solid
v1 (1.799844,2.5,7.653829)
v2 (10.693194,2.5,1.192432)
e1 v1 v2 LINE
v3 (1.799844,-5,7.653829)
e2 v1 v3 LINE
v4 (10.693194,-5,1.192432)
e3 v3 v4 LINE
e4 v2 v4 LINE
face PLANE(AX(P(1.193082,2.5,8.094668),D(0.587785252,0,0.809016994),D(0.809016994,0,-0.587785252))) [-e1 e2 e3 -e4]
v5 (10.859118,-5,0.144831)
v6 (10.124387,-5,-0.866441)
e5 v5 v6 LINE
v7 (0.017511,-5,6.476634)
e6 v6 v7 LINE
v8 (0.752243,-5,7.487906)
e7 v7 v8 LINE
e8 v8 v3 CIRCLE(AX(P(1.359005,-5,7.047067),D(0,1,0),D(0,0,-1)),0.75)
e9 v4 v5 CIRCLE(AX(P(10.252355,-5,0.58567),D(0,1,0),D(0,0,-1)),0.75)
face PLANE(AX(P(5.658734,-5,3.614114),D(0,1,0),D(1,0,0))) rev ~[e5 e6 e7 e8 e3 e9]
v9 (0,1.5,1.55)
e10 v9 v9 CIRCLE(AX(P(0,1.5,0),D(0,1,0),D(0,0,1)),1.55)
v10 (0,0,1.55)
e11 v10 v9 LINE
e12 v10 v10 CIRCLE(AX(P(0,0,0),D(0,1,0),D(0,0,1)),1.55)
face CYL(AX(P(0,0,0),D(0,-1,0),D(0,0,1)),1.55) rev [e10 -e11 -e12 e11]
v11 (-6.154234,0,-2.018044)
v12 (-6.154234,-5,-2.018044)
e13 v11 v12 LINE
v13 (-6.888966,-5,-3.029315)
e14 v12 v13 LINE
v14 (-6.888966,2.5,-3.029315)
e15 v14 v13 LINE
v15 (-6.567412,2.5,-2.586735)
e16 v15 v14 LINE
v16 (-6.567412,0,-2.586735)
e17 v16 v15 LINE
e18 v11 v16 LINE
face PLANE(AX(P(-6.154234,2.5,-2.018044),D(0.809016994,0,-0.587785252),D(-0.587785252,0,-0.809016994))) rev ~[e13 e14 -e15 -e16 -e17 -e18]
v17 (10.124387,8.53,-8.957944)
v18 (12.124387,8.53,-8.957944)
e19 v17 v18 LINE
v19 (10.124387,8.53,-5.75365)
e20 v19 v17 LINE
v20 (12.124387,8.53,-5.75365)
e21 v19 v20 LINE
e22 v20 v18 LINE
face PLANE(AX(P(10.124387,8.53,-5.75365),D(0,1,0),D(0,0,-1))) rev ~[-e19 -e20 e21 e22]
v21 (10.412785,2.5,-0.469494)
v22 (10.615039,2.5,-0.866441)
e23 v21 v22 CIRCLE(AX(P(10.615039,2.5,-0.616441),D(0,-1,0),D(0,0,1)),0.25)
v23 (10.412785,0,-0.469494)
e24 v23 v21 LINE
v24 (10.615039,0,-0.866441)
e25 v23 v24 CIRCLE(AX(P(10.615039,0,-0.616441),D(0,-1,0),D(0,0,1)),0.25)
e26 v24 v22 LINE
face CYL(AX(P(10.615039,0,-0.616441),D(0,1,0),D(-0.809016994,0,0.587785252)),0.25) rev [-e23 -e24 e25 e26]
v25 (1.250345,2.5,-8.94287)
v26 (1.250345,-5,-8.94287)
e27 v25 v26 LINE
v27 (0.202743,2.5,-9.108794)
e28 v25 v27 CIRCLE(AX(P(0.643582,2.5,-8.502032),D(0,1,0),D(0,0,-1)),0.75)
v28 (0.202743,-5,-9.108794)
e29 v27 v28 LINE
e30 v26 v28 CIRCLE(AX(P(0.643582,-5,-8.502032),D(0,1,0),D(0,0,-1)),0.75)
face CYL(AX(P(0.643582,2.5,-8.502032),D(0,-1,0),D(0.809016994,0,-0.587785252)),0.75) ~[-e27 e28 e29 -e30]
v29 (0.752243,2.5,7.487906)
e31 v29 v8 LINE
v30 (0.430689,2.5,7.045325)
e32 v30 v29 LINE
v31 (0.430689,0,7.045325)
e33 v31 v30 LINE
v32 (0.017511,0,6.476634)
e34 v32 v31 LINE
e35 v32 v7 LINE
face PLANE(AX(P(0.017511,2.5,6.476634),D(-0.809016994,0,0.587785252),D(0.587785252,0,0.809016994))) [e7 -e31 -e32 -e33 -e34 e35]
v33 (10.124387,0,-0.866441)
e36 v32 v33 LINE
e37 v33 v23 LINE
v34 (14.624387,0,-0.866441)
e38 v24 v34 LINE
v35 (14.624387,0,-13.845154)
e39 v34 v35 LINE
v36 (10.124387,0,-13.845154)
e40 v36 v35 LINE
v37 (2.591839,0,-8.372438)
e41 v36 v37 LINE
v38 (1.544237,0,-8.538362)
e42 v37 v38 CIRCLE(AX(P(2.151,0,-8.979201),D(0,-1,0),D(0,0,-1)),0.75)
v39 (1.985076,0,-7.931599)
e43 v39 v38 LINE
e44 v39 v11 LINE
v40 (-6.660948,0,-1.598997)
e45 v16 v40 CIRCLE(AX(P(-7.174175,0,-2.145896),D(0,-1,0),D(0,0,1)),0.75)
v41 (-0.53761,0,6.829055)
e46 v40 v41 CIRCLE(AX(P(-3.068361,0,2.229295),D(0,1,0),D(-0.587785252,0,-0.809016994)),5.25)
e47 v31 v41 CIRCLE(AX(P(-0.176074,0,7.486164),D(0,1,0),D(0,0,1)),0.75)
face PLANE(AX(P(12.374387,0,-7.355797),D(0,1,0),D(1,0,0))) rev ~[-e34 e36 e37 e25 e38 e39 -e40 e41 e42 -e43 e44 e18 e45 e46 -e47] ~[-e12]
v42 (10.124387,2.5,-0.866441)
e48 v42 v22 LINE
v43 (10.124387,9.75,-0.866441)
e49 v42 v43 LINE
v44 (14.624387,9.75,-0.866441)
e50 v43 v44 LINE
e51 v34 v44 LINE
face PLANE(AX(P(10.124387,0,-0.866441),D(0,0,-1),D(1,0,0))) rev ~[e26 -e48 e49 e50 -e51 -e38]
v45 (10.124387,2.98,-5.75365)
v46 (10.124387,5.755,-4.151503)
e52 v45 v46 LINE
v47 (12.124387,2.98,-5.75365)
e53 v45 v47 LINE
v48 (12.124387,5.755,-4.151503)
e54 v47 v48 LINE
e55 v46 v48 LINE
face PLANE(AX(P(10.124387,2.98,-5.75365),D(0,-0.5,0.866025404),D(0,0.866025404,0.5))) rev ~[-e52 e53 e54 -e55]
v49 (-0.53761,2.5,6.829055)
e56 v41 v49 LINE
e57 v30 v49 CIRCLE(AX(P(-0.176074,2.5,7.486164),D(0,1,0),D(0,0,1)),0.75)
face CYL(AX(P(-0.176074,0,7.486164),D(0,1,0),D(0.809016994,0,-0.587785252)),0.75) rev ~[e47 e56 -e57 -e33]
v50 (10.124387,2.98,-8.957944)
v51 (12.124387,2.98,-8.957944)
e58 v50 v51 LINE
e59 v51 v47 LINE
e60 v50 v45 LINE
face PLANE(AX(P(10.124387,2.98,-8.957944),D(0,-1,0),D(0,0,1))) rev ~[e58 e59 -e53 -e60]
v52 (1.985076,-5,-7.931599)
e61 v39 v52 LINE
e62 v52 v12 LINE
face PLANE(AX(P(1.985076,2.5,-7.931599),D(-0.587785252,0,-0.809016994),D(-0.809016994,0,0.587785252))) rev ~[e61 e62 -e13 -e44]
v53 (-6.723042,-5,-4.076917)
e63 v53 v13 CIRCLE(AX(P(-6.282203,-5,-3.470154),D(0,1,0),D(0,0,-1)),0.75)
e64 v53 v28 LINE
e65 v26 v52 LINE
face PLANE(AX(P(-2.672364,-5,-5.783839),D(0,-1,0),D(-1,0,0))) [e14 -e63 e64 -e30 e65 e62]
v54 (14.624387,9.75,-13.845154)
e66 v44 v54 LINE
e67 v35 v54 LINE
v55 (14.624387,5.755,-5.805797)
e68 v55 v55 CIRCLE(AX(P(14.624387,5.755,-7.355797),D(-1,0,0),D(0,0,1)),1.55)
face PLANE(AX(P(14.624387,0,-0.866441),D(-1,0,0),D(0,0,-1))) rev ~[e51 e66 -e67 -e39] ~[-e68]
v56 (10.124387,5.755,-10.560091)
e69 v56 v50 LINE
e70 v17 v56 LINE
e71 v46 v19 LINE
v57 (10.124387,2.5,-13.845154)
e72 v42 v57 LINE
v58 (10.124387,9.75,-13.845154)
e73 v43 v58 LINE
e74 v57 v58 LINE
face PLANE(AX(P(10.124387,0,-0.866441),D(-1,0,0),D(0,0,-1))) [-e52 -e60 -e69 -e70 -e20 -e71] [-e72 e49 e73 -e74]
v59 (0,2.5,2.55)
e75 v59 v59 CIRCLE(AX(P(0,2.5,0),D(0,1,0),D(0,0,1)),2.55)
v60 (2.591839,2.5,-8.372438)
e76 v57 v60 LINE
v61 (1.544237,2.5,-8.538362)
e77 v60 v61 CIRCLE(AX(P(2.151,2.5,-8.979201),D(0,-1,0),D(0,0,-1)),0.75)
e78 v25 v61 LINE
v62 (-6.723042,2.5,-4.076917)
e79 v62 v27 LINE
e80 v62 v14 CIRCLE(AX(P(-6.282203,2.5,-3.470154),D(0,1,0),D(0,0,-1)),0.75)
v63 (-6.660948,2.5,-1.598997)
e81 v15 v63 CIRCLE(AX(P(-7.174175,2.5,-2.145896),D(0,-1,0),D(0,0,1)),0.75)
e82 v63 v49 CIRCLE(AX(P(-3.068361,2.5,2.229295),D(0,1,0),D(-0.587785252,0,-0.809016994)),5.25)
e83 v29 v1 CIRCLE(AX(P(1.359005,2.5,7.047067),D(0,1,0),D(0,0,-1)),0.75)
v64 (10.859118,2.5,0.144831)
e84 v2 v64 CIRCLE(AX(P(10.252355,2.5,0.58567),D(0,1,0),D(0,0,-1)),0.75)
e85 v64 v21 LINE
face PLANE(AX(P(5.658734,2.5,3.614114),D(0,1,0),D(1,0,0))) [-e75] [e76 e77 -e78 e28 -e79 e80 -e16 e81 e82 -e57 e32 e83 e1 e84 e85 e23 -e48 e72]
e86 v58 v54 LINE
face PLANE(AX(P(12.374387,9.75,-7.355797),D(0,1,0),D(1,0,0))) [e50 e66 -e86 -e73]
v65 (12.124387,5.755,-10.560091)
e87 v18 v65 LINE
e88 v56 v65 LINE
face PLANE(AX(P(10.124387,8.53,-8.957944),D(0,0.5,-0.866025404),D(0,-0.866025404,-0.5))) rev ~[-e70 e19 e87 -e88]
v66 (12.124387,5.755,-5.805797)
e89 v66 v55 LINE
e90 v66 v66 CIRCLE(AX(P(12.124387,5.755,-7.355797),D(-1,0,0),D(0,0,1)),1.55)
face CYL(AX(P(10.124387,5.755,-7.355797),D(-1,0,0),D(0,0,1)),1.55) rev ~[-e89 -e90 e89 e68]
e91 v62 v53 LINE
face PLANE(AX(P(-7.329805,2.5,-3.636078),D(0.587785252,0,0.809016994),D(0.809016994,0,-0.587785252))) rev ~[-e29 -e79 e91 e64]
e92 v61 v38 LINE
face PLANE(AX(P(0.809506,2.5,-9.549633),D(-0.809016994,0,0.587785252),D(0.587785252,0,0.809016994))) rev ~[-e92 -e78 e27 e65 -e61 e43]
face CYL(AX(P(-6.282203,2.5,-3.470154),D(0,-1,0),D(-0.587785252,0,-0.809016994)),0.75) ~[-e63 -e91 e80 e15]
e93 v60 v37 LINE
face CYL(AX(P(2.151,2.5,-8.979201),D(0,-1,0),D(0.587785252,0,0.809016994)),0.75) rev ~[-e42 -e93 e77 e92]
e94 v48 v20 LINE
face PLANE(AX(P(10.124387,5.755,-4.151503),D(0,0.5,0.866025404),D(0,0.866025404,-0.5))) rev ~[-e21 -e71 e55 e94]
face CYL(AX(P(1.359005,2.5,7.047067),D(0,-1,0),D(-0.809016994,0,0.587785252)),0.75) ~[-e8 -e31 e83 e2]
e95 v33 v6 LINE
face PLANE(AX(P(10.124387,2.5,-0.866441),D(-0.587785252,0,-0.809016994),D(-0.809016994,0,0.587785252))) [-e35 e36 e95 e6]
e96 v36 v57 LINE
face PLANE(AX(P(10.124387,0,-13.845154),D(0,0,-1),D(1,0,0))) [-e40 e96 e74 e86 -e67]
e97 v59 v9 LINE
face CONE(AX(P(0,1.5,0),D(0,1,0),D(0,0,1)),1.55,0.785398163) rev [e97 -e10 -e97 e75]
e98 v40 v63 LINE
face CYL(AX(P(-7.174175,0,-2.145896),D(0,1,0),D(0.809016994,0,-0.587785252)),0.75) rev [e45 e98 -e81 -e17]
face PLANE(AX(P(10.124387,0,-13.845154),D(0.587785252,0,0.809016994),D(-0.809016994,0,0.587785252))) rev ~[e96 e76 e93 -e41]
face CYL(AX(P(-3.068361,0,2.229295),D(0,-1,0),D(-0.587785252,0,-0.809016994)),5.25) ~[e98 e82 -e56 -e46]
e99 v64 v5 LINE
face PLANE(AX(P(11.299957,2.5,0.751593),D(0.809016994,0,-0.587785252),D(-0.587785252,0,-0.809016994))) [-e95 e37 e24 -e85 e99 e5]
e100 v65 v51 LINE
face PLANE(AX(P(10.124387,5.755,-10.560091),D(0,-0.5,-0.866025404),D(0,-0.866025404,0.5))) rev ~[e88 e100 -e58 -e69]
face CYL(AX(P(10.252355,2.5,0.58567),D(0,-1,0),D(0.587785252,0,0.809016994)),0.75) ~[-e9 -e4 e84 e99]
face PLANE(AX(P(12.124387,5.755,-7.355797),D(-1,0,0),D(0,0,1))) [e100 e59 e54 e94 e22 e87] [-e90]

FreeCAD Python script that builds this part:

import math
import FreeCAD as App
import Part
import Sketcher
from FreeCAD import Vector
Q = App.Units.Quantity


def edges_at(feature, points):
    """Names of the edges that pass closest to the given points."""
    edges = feature.Shape.Edges
    near = lambda p: min(range(len(edges)), key=lambda i: edges[i].distToShape(Part.Vertex(*p))[0])
    return sorted({f"Edge{near(p) + 1}" for p in points})


def add_polygon(sketch, points):
    """Adds a closed chain of lines whose ends are joined by coincident constraints."""
    first, n = sketch.GeometryCount, len(points)
    for a, b in zip(points, points[1:] + points[:1]):
        sketch.addGeometry(Part.LineSegment(App.Vector(*a, 0), App.Vector(*b, 0)), False)
    for i in range(n):
        sketch.addConstraint(Sketcher.Constraint("Coincident", first + i, 2, first + (i + 1) % n, 1))

doc = App.newDocument("Part")
body = doc.addObject("PartDesign::Body", "Body")

# Sketch on XZ plane
sketch1 = body.newObject("Sketcher::SketchObject", "Sketch")
sketch1.AttachmentSupport = (doc.getObject("XZ_Plane"), [""])
sketch1.MapMode = "FlatFace"
sketch1.addGeometry(Part.LineSegment(Vector(10.1, -13.8, 0), Vector(-6.2, -2, 0)), False)
sketch1.addGeometry(Part.ArcOfCircle(Part.Circle(Vector(-3.1, 2.2, 0), Vector(0, 0, 1), 5.2), math.radians(54), math.radians(234)), False)
sketch1.addGeometry(Part.LineSegment(Vector(0, 6.5, 0), Vector(10.1, -0.9, 0)), False)
sketch1.addGeometry(Part.LineSegment(Vector(10.1, -0.9, 0), Vector(10.1, -13.8, 0)), False)
sketch1.addGeometry(Part.Circle(Vector(0, 0, 0), Vector(0, 0, 1), 1.6), False)
sketch1.addConstraint(Sketcher.Constraint("Tangent", 0, 2, 1, 2))
sketch1.addConstraint(Sketcher.Constraint("Tangent", 1, 1, 2, 1))
sketch1.addConstraint(Sketcher.Constraint("Coincident", 2, 2, 3, 1))
sketch1.addConstraint(Sketcher.Constraint("Coincident", 3, 2, 0, 1))
sketch1.addConstraint(Sketcher.Constraint("Vertical", 3))
sketch1.addConstraint(Sketcher.Constraint("Coincident", 4, 3, -1, 1))
sketch1.addConstraint(Sketcher.Constraint("Parallel", 0, 2))
sketch1.addConstraint(Sketcher.Constraint("Diameter", 4, Q("3.1 mm")))
sketch1.addConstraint(Sketcher.Constraint("Angle", 0, Q("144 deg")))
sketch1.addConstraint(Sketcher.Constraint("Radius", 1, Q("5.25 mm")))
sketch1.addConstraint(Sketcher.Constraint("Distance", 0, Q("20.121482 mm")))
sketch1.addConstraint(Sketcher.Constraint("DistanceX", 1, 3, -1, 1, Q("3.068361 mm")))
sketch1.addConstraint(Sketcher.Constraint("DistanceY", 2, 2, -1, 1, Q("0.866441 mm")))
pad1 = body.newObject("PartDesign::Pad", "Pad")
pad1.Profile = sketch1
pad1.Length = 2.5
pad1.Reversed = True

# Sketch on XZ plane
sketch2 = body.newObject("Sketcher::SketchObject", "Sketch001")
sketch2.AttachmentSupport = (doc.getObject("XZ_Plane"), [""])
sketch2.MapMode = "FlatFace"
sketch2.AttachmentOffset = App.Placement(Vector(0, 0, -2.5), App.Rotation())
add_polygon(sketch2, [(0, 6.5), (1.2, 8.1), (11.3, 0.8), (10.1, -0.9)])  # lines 0-3
add_polygon(sketch2, [(0.8, -9.5), (-7.3, -3.6), (-6.2, -2), (2, -7.9)])  # lines 4-7
sketch2.addConstraint(Sketcher.Constraint("Perpendicular", 0, 1))
sketch2.addConstraint(Sketcher.Constraint("Perpendicular", 1, 2))
sketch2.addConstraint(Sketcher.Constraint("Perpendicular", 2, 3))
sketch2.addConstraint(Sketcher.Constraint("Parallel", 3, 4))
sketch2.addConstraint(Sketcher.Constraint("Perpendicular", 4, 5))
sketch2.addConstraint(Sketcher.Constraint("Perpendicular", 5, 6))
sketch2.addConstraint(Sketcher.Constraint("Perpendicular", 6, 7))
sketch2.addConstraint(Sketcher.Constraint("Equal", 2, 5))
sketch2.addConstraint(Sketcher.Constraint("Angle", 0, Q("54 deg")))
sketch2.addConstraint(Sketcher.Constraint("Distance", 0, Q("2 mm")))
sketch2.addConstraint(Sketcher.Constraint("DistanceY", 6, 2, -1, 1, Q("7.931599 mm")))
sketch2.addConstraint(Sketcher.Constraint("Distance", 4, Q("10.060741 mm")))
sketch2.addConstraint(Sketcher.Constraint("DistanceX", -1, 1, 0, 2, Q("1.193082 mm")))
sketch2.addConstraint(Sketcher.Constraint("DistanceY", -1, 1, 0, 2, Q("8.094668 mm")))
sketch2.addConstraint(Sketcher.Constraint("DistanceY", 2, 2, -1, 1, Q("0.866441 mm")))
sketch2.addConstraint(Sketcher.Constraint("DistanceX", 4, 2, 2, 2, Q("17.454191 mm")))
pad2 = body.newObject("PartDesign::Pad", "Pad001")
pad2.Profile = sketch2
pad2.Length = 7.5

# Sketch on XZ plane
sketch3 = body.newObject("Sketcher::SketchObject", "Sketch002")
sketch3.AttachmentSupport = (doc.getObject("XZ_Plane"), [""])
sketch3.MapMode = "FlatFace"
add_polygon(sketch3, [(10.1, -13.8), (10.1, -0.9), (14.6, -0.9), (14.6, -13.8)])  # lines 0-3
sketch3.addConstraint(Sketcher.Constraint("Vertical", 0))
sketch3.addConstraint(Sketcher.Constraint("Horizontal", 1))
sketch3.addConstraint(Sketcher.Constraint("Vertical", 2))
sketch3.addConstraint(Sketcher.Constraint("Horizontal", 3))
sketch3.addConstraint(Sketcher.Constraint("DistanceX", 1, 1, 1, 2, Q("4.5 mm")))
sketch3.addConstraint(Sketcher.Constraint("DistanceY", 0, 1, 0, 2, Q("12.978714 mm")))
sketch3.addConstraint(Sketcher.Constraint("DistanceY", 0, 2, -1, 1, Q("0.866441 mm")))
sketch3.addConstraint(Sketcher.Constraint("DistanceX", -1, 1, 0, 2, Q("10.124387 mm")))
pad3 = body.newObject("PartDesign::Pad", "Pad002")
pad3.Profile = sketch3
pad3.Length = 9.75
pad3.Reversed = True
doc.recompute()

chamfer = body.newObject("PartDesign::Chamfer", "Chamfer")
chamfer.Base = (pad3, edges_at(pad3, [(0, 2.5, -1.55)]))
chamfer.Size = 1

# Sketch on YZ plane
sketch4 = body.newObject("Sketcher::SketchObject", "Sketch003")
sketch4.AttachmentSupport = (doc.getObject("YZ_Plane"), [""])
sketch4.MapMode = "FlatFace"
sketch4.AttachmentOffset = App.Placement(Vector(0, 0, 10.124387), App.Rotation())
add_polygon(sketch4, [(5.8, -4.2), (8.5, -5.8), (8.5, -9), (5.8, -10.6), (3, -9), (3, -5.8)])  # lines 0-5
sketch4.addConstraint(Sketcher.Constraint("Vertical", 1))
sketch4.addConstraint(Sketcher.Constraint("Vertical", 4))
sketch4.addConstraint(Sketcher.Constraint("Parallel", 0, 3))
sketch4.addConstraint(Sketcher.Constraint("Parallel", 2, 5))
sketch4.addConstraint(Sketcher.Constraint("Horizontal", 1, 2, 3, 2))
sketch4.addConstraint(Sketcher.Constraint("Horizontal", 0, 2, 4, 2))
sketch4.addConstraint(Sketcher.Constraint("Vertical", 2, 2, 5, 2))
sketch4.addConstraint(Sketcher.Constraint("Angle", 0, Q("-30 deg")))
sketch4.addConstraint(Sketcher.Constraint("DistanceX", -1, 1, 0, 2, Q("8.53 mm")))
sketch4.addConstraint(Sketcher.Constraint("DistanceX", -1, 1, 3, 2, Q("2.98 mm")))
sketch4.addConstraint(Sketcher.Constraint("DistanceY", 1, 2, 1, 1, Q("3.204294 mm")))
sketch4.addConstraint(Sketcher.Constraint("DistanceY", 0, 2, -1, 1, Q("5.75365 mm")))
pocket1 = body.newObject("PartDesign::Pocket", "Pocket")
pocket1.Profile = sketch4
pocket1.Length = 2
pocket1.Reversed = True

# Sketch on YZ plane
sketch5 = body.newObject("Sketcher::SketchObject", "Sketch004")
sketch5.AttachmentSupport = (doc.getObject("YZ_Plane"), [""])
sketch5.MapMode = "FlatFace"
sketch5.AttachmentOffset = App.Placement(Vector(0, 0, 10.124387), App.Rotation())
sketch5.addGeometry(Part.Circle(Vector(5.8, -7.4, 0), Vector(0, 0, 1), 1.6), False)
sketch5.addConstraint(Sketcher.Constraint("Diameter", 0, Q("3.1 mm")))
sketch5.addConstraint(Sketcher.Constraint("DistanceX", -1, 1, 0, 3, Q("5.755 mm")))
sketch5.addConstraint(Sketcher.Constraint("DistanceY", 0, 3, -1, 1, Q("7.355797 mm")))
pocket2 = body.newObject("PartDesign::Pocket", "Pocket001")
pocket2.Profile = sketch5
pocket2.Length = 4.5
pocket2.Reversed = True
doc.recompute()

fillet = body.newObject("PartDesign::Fillet", "Fillet")
fillet.Base = (pocket2, edges_at(pocket2, [
    (11.3, -1.25, 0.752),
    (1.193, -1.25, 8.095),
    (1.985, 1.25, -7.932),
    (-7.33, -1.25, -3.636),
    (0.81, -1.25, -9.55),
    (-6.154, 1.25, -2.018),
    (0.018, 1.25, 6.477),
]))
fillet.Radius = 0.75
doc.recompute()

fillet2 = body.newObject("PartDesign::Fillet", "Fillet001")
fillet2.Base = (fillet, edges_at(fillet, [(10.124, 1.25, -0.866)]))
fillet2.Radius = 0.25

doc.recompute()
